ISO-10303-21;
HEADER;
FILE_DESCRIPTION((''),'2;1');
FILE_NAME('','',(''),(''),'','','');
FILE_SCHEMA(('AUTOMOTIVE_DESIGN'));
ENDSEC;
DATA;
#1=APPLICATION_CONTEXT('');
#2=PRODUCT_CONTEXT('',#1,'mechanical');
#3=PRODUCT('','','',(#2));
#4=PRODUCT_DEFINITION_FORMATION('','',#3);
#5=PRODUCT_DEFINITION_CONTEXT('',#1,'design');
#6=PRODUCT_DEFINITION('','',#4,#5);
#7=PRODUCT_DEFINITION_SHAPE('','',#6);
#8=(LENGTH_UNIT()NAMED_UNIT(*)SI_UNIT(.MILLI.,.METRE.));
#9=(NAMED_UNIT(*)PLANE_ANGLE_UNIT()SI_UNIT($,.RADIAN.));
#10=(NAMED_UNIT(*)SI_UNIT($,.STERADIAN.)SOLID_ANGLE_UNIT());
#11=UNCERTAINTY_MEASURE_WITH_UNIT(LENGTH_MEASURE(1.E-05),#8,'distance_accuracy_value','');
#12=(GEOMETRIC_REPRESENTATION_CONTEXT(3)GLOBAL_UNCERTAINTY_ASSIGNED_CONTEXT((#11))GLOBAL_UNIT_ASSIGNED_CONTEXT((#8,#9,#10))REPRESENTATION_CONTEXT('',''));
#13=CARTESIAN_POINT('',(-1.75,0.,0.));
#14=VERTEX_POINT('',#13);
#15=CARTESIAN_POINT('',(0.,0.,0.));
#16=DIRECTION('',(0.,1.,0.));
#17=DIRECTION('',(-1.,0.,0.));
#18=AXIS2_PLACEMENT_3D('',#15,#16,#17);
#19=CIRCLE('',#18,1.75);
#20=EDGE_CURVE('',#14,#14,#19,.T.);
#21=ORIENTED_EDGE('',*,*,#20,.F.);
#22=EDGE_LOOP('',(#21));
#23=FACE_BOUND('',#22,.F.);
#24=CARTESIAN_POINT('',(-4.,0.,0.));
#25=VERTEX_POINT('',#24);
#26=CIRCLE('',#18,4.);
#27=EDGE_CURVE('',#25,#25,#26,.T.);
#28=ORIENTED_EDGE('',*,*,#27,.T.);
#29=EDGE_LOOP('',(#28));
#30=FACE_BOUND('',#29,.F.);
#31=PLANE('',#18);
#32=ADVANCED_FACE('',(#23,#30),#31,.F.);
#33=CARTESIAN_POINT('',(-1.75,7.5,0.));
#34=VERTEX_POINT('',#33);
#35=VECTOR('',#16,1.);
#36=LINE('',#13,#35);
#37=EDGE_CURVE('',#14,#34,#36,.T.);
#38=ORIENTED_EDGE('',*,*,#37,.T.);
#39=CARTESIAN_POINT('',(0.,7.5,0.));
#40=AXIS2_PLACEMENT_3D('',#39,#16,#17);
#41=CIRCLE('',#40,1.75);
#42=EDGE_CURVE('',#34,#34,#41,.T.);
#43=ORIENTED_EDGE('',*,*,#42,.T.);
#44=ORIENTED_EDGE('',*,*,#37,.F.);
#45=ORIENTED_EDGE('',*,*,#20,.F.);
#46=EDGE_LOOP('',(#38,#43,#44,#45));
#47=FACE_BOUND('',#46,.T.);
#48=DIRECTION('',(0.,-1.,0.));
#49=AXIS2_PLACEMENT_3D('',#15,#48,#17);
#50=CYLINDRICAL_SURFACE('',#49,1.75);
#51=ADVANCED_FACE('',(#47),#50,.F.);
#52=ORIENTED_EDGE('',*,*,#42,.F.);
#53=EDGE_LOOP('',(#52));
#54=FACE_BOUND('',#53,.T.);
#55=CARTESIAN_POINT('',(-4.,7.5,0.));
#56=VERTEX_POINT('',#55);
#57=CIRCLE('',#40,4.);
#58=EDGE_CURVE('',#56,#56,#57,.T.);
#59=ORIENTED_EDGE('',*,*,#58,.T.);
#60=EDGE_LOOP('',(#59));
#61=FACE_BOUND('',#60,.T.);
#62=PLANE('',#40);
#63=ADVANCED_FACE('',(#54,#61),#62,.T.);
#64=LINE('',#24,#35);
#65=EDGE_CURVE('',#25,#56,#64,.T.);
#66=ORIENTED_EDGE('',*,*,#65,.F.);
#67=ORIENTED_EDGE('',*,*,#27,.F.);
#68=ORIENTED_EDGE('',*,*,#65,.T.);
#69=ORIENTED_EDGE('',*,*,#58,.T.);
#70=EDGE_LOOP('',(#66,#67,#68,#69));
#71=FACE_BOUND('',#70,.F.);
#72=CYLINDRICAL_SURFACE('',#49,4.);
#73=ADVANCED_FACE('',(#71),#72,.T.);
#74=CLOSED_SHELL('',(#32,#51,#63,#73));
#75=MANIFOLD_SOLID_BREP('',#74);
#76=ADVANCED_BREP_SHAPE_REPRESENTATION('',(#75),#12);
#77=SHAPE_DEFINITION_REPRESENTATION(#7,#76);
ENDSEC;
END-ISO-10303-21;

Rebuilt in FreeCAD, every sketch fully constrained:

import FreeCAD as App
import Part
import Sketcher
from FreeCAD import Vector

doc = App.newDocument("Part")
body = doc.addObject("PartDesign::Body", "Body")

sketch1 = body.newObject("Sketcher::SketchObject", "Sketch")
sketch1.AttachmentSupport = (doc.getObject("XZ_Plane"), [""])
sketch1.MapMode = "FlatFace"
sketch1.addGeometry([
    Part.Circle(Vector(0, 0, 0), Vector(0, 0, 1), 4),
    Part.Circle(Vector(0, 0, 0), Vector(0, 0, 1), 1.75),
], False)
sketch1.addConstraint([
    Sketcher.Constraint("Coincident", 0, 3, -1, 1),
    Sketcher.Constraint("Coincident", 1, 3, -1, 1),
    Sketcher.Constraint("Diameter", 0, 8.0),
    Sketcher.Constraint("Diameter", 1, 3.5),
])
pad1 = body.newObject("PartDesign::Pad", "Pad")
pad1.Profile = sketch1
pad1.Length = 7.5
pad1.Reversed = True

doc.recompute()
